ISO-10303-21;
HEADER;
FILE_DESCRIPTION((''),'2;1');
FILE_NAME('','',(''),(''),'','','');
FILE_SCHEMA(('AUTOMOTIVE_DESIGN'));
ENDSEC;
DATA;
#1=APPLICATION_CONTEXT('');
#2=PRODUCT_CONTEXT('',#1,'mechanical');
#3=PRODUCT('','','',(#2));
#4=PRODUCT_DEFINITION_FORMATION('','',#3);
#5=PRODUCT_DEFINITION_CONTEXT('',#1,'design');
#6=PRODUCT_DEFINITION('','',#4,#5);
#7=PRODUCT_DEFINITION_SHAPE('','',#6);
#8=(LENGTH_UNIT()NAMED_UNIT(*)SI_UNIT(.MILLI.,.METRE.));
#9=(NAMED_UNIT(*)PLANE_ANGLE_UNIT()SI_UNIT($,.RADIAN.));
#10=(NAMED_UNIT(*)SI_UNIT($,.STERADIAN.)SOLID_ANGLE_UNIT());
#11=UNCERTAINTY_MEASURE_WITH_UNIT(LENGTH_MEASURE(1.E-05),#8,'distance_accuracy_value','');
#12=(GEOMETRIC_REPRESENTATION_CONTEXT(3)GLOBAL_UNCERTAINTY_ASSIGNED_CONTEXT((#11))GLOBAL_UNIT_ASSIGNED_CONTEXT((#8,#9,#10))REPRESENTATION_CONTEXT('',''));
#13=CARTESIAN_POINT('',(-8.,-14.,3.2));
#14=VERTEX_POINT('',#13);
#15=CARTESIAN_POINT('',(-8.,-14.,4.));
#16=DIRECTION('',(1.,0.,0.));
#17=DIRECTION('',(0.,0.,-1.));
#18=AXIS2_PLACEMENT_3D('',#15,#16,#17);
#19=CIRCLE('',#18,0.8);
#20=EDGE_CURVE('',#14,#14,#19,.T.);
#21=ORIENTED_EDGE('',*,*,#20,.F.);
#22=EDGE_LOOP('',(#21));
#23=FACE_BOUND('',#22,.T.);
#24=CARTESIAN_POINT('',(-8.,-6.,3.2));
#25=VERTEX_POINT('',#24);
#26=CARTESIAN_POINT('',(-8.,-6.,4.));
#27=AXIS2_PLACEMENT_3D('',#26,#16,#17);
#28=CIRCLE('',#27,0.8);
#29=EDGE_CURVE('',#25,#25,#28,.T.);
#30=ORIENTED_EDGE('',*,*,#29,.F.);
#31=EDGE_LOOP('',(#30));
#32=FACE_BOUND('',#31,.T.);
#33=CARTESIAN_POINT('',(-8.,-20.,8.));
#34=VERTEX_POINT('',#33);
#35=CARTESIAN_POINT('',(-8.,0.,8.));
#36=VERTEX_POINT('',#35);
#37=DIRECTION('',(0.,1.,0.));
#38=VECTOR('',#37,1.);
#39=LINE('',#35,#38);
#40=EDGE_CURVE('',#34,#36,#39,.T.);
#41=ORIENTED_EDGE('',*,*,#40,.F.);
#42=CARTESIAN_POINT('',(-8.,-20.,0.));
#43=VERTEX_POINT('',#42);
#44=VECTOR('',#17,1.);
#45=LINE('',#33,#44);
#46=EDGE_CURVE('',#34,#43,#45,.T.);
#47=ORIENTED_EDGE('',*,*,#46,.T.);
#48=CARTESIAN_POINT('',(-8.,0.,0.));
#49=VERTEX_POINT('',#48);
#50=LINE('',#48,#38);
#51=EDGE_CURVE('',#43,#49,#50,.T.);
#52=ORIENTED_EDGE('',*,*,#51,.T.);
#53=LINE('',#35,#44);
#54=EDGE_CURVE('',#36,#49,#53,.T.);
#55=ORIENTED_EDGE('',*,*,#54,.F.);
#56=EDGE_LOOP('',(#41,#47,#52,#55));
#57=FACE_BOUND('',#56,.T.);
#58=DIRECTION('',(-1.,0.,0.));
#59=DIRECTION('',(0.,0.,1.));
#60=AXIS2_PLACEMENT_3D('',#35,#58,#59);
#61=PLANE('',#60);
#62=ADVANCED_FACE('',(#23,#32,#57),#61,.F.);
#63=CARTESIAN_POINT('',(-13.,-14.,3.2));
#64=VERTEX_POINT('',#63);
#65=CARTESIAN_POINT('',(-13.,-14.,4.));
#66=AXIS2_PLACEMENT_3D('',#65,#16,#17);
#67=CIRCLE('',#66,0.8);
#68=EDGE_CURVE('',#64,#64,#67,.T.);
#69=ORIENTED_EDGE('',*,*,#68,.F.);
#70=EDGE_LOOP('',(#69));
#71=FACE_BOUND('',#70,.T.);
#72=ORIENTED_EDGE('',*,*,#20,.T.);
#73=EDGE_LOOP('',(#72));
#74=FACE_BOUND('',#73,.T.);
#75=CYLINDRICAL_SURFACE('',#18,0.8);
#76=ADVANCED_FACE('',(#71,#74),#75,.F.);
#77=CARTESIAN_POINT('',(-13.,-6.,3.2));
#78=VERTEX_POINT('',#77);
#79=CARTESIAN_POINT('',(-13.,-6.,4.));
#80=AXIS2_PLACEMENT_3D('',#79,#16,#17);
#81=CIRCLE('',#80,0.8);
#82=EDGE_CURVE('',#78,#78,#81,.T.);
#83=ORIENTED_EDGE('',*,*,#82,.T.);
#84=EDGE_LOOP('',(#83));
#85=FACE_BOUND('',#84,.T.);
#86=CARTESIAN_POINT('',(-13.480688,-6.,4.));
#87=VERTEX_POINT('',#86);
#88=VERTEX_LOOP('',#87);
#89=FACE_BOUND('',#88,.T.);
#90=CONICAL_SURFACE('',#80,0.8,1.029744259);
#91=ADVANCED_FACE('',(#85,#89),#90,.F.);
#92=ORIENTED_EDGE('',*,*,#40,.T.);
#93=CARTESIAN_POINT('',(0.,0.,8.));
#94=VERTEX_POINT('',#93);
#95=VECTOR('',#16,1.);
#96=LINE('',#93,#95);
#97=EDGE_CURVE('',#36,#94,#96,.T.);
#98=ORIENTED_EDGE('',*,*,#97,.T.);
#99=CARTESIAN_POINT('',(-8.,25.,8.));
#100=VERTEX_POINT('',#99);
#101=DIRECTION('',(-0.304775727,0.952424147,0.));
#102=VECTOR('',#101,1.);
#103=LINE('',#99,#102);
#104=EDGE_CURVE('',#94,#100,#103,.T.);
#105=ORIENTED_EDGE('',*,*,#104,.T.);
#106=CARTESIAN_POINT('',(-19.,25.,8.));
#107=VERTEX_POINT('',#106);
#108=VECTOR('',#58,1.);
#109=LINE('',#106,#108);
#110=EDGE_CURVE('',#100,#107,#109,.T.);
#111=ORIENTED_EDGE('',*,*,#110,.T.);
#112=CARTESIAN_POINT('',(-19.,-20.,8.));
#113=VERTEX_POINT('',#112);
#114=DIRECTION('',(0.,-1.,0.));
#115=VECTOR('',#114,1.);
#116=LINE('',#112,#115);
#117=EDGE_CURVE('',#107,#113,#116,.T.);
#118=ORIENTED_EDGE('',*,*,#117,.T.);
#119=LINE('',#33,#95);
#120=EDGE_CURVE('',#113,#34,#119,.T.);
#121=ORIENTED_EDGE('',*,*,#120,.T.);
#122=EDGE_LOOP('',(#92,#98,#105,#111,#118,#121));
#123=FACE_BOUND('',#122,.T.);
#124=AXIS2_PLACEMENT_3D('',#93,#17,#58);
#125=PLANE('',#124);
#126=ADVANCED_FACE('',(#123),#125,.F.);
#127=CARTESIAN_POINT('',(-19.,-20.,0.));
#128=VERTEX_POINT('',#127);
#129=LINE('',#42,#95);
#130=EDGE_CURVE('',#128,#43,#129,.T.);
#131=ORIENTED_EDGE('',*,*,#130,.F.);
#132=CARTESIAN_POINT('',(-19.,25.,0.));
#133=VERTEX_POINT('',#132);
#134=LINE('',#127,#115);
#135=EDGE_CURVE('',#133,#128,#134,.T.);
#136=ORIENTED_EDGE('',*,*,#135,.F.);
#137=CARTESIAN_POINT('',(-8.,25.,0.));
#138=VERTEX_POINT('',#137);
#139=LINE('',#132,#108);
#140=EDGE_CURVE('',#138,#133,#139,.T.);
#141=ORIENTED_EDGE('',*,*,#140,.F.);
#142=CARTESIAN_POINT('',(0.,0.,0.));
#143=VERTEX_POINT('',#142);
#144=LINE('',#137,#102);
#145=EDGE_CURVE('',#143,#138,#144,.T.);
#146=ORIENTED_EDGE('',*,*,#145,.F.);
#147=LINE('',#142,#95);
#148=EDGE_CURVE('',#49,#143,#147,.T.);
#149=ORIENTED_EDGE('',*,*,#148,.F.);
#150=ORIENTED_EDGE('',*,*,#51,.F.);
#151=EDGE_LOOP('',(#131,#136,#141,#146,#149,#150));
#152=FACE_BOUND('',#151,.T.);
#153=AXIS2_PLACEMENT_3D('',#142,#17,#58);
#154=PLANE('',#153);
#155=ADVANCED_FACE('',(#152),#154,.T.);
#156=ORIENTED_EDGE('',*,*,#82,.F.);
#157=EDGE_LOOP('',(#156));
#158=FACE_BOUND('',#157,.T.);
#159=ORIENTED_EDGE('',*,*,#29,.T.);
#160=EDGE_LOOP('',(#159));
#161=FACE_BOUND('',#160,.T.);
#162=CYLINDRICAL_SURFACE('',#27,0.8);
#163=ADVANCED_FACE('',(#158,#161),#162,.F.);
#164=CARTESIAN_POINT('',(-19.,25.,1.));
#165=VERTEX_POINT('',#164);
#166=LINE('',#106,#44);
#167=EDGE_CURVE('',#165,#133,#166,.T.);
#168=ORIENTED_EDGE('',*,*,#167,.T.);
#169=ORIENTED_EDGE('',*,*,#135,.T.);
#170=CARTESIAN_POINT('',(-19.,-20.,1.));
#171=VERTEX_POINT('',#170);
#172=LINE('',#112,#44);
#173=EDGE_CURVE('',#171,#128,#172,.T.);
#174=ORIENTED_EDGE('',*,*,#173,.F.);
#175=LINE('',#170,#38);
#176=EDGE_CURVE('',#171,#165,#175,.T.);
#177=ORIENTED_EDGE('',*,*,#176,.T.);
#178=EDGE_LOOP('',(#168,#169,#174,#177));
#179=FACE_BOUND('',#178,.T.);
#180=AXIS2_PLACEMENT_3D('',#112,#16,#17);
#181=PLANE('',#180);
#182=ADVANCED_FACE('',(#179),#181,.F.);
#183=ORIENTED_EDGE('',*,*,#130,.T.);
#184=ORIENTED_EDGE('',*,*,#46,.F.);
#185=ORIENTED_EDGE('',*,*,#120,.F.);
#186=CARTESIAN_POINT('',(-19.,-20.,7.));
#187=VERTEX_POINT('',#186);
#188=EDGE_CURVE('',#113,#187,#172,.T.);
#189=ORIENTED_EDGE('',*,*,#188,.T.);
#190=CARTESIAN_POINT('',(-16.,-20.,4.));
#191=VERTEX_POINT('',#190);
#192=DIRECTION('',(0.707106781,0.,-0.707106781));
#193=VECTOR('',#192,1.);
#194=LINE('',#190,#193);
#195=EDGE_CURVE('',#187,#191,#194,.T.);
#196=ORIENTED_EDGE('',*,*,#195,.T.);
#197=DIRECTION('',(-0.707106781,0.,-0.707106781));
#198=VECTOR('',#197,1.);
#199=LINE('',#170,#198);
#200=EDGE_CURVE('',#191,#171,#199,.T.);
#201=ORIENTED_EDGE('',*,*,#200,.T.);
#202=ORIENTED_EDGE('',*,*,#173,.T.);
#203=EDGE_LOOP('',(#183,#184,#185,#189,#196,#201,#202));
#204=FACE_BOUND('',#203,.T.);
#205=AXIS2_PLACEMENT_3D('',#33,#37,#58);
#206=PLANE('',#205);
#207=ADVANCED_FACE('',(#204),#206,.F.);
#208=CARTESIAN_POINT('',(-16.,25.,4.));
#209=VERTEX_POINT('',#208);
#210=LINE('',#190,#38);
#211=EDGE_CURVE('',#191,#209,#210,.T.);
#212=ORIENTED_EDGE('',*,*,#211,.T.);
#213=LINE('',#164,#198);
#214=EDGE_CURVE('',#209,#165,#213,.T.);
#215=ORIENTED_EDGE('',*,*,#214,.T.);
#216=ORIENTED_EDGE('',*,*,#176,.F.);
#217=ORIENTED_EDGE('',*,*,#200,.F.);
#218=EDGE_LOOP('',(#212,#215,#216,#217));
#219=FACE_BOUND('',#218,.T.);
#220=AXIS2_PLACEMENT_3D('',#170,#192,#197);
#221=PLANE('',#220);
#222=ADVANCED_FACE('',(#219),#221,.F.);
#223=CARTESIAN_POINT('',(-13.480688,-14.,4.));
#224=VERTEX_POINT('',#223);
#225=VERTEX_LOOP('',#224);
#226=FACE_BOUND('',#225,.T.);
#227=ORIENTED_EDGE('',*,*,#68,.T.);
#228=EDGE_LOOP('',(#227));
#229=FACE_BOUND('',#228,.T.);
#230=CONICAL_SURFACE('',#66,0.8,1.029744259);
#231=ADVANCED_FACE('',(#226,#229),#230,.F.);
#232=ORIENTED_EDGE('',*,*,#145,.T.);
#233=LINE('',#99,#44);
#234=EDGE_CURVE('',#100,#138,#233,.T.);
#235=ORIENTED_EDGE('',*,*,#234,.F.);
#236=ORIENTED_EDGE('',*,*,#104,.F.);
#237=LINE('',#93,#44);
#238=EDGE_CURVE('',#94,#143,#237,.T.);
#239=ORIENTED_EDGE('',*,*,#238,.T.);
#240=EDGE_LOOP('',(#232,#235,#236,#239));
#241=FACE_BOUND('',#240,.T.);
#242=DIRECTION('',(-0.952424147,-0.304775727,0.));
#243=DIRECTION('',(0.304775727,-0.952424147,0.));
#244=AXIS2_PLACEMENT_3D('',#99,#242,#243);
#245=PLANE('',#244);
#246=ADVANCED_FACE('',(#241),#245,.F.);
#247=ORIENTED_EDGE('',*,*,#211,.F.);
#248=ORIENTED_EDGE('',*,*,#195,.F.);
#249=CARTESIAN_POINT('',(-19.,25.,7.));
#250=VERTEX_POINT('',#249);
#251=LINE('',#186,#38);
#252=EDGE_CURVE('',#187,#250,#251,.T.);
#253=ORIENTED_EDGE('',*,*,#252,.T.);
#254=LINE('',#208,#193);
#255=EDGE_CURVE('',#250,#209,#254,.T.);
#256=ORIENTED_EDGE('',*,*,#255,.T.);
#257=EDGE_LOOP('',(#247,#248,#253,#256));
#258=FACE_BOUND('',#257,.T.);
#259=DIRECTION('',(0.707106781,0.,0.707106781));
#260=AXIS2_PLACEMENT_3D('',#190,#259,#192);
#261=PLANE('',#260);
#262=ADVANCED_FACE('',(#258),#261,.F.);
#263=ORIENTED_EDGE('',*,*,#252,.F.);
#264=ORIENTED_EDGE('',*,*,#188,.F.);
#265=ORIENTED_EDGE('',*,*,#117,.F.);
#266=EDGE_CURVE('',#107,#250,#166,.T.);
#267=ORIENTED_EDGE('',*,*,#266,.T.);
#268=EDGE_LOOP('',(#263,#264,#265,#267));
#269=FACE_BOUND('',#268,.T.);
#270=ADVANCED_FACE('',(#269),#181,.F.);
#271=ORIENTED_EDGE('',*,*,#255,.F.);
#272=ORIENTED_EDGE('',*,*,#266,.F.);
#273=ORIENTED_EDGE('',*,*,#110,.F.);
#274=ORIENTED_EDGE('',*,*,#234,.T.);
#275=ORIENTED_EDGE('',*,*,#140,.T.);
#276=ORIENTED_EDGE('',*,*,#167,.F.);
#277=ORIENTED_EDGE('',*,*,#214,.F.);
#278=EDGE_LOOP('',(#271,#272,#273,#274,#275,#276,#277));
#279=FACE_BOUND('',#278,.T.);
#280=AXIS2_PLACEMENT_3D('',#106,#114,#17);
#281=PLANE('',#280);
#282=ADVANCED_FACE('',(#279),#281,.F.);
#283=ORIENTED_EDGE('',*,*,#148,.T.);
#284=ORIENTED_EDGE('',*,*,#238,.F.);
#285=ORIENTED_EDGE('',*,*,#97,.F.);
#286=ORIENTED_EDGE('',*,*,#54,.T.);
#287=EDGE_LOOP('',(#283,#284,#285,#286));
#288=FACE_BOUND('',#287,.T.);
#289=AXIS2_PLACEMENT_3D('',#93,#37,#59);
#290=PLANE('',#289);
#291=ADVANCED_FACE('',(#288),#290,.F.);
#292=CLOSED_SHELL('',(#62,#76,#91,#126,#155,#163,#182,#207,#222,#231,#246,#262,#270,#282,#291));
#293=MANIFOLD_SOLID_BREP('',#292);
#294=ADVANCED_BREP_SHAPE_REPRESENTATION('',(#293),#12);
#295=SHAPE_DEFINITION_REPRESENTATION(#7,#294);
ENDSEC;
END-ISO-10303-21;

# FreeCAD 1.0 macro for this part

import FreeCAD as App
import Part
import Sketcher

V = App.Vector
Q = App.Units.Quantity


def add_polygon(sketch, points):
    """Adds a closed chain of lines whose ends are joined by coincident constraints."""
    first, n = sketch.GeometryCount, len(points)
    for a, b in zip(points, points[1:] + points[:1]):
        sketch.addGeometry(Part.LineSegment(App.Vector(*a, 0), App.Vector(*b, 0)), False)
    for i in range(n):
        sketch.addConstraint(Sketcher.Constraint("Coincident", first + i, 2, first + (i + 1) % n, 1))

doc = App.newDocument("Part")
body = doc.addObject("PartDesign::Body", "Body")

sketch1 = doc.addObject("Sketcher::SketchObject", "Sketch")
body.addObject(sketch1)
sketch1.AttachmentSupport = (doc.XY_Plane, [""])
sketch1.MapMode = "FlatFace"
add_polygon(sketch1, [(-8, 0), (0, 0), (-8, 25), (-19, 25), (-19, -20), (-8, -20)])
sketch1.addConstraint([
    Sketcher.Constraint("Horizontal", 0),
    Sketcher.Constraint("Horizontal", 2),
    Sketcher.Constraint("Vertical", 3),
    Sketcher.Constraint("Horizontal", 4),
    Sketcher.Constraint("Vertical", 5),
    Sketcher.Constraint("Coincident", 0, 2, -1, 1),
    Sketcher.Constraint("Vertical", 1, 2, 4, 2),
    Sketcher.Constraint("DistanceX", 0, 1, 0, 2, Q("8 mm")),
    Sketcher.Constraint("DistanceX", 2, 2, 2, 1, Q("11 mm")),
    Sketcher.Constraint("DistanceY", 3, 2, 3, 1, Q("45 mm")),
    Sketcher.Constraint("DistanceY", 5, 1, 5, 2, Q("20 mm")),
])
pad1 = doc.addObject("PartDesign::Pad", "Pad")
body.addObject(pad1)
pad1.Profile = sketch1
pad1.Length = 8

sketch2 = doc.addObject("Sketcher::SketchObject", "Sketch001")
body.addObject(sketch2)
sketch2.AttachmentSupport = (doc.XZ_Plane, [""])
sketch2.MapMode = "FlatFace"
sketch2.AttachmentOffset = App.Placement(V(0, 0, -25), App.Rotation())
add_polygon(sketch2, [(-19, 1), (-19, 7), (-16, 4)])
sketch2.addConstraint([
    Sketcher.Constraint("Vertical", 0),
    Sketcher.Constraint("Perpendicular", 1, 2),
    Sketcher.Constraint("Equal", 1, 2),
    Sketcher.Constraint("DistanceY", 0, 1, 0, 2, Q("6 mm")),
    Sketcher.Constraint("DistanceX", 0, 2, -1, 1, Q("19 mm")),
    Sketcher.Constraint("DistanceY", -1, 1, 0, 2, Q("7 mm")),
])
pocket1 = doc.addObject("PartDesign::Pocket", "Pocket")
body.addObject(pocket1)
pocket1.Profile = sketch2
pocket1.Type = "ThroughAll"
pocket1.Reversed = True

sketch3 = doc.addObject("Sketcher::SketchObject", "Sketch002")
body.addObject(sketch3)
sketch3.AttachmentSupport = (doc.YZ_Plane, [""])
sketch3.MapMode = "FlatFace"
sketch3.AttachmentOffset = App.Placement(V(0, 0, -8), App.Rotation())
sketch3.addGeometry([
    Part.Circle(V(-6, 4, 0), V(0, 0, 1), 0.8),
    Part.Circle(V(-14, 4, 0), V(0, 0, 1), 0.8),
], False)
sketch3.addConstraint([
    Sketcher.Constraint("Equal", 0, 1),
    Sketcher.Constraint("Horizontal", 0, 3, 1, 3),
    Sketcher.Constraint("Diameter", 0, Q("1.6 mm")),
    Sketcher.Constraint("DistanceX", 0, 3, -1, 1, Q("6 mm")),
    Sketcher.Constraint("DistanceY", -1, 1, 0, 3, Q("4 mm")),
    Sketcher.Constraint("DistanceX", 1, 3, -1, 1, Q("14 mm")),
])
doc.recompute()
hole = doc.addObject("PartDesign::Hole", "Hole")
body.addObject(hole)
hole.Profile = sketch3
hole.ThreadType = "None"
hole.Diameter = 1.6
hole.DepthType = "Dimension"
hole.Depth = 5
hole.DrillPoint = "Angled"
hole.DrillPointAngle = 118

doc.recompute()
